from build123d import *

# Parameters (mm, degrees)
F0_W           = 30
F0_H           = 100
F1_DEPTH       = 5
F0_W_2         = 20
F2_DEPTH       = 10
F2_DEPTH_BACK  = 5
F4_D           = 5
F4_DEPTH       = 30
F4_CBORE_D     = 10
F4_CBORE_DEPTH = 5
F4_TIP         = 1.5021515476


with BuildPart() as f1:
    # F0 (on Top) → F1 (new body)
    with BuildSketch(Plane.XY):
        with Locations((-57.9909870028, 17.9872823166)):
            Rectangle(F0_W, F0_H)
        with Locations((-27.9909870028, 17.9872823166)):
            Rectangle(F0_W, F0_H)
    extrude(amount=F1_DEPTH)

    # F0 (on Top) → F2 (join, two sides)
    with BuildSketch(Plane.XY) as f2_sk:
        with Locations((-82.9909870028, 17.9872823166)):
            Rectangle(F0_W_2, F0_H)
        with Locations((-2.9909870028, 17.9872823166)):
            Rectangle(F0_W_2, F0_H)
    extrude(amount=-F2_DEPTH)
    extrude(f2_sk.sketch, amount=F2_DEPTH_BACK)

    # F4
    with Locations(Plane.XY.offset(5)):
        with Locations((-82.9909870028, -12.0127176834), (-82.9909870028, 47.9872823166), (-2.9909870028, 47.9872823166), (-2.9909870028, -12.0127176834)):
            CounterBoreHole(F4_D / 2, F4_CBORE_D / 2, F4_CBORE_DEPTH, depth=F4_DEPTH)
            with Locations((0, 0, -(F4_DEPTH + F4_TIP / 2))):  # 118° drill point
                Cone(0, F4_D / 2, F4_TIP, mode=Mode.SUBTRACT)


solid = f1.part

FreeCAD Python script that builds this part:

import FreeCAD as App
import Part
import Sketcher
from FreeCAD import Vector
Q = App.Units.Quantity


def add_polygon(sketch, points):
    """Adds a closed chain of lines whose ends are joined by coincident constraints."""
    first, n = sketch.GeometryCount, len(points)
    for a, b in zip(points, points[1:] + points[:1]):
        sketch.addGeometry(Part.LineSegment(App.Vector(*a, 0), App.Vector(*b, 0)), False)
    for i in range(n):
        sketch.addConstraint(Sketcher.Constraint("Coincident", first + i, 2, first + (i + 1) % n, 1))

doc = App.newDocument("Part")
body = doc.addObject("PartDesign::Body", "Body")

sketch1 = body.newObject("Sketcher::SketchObject", "Sketch")
sketch1.AttachmentSupport = (doc.getObject("XY_Plane"), [""])
sketch1.MapMode = "FlatFace"
add_polygon(sketch1, [(-73, 68), (-73, -32), (-13, -32), (-13, 68)])
sketch1.addConstraint(Sketcher.Constraint("Vertical", 0))
sketch1.addConstraint(Sketcher.Constraint("Horizontal", 1))
sketch1.addConstraint(Sketcher.Constraint("Vertical", 2))
sketch1.addConstraint(Sketcher.Constraint("Horizontal", 3))
sketch1.addConstraint(Sketcher.Constraint("DistanceX", 1, 1, 1, 2, Q("60 mm")))
sketch1.addConstraint(Sketcher.Constraint("DistanceY", 0, 2, 0, 1, Q("100 mm")))
sketch1.addConstraint(Sketcher.Constraint("DistanceX", 0, 2, -1, 1, Q("72.990987 mm")))
sketch1.addConstraint(Sketcher.Constraint("DistanceY", 0, 2, -1, 1, Q("32.012718 mm")))
pad1 = body.newObject("PartDesign::Pad", "Pad")
pad1.Profile = sketch1
pad1.Length = 5

sketch2 = body.newObject("Sketcher::SketchObject", "Sketch001")
sketch2.AttachmentSupport = (doc.getObject("XY_Plane"), [""])
sketch2.MapMode = "FlatFace"
add_polygon(sketch2, [(-93, 68), (-93, -32), (-73, -32), (-73, 68)])
add_polygon(sketch2, [(-13, 68), (-13, -32), (7, -32), (7, 68)])
sketch2.addConstraint(Sketcher.Constraint("Vertical", 0))
sketch2.addConstraint(Sketcher.Constraint("Horizontal", 1))
sketch2.addConstraint(Sketcher.Constraint("Vertical", 2))
sketch2.addConstraint(Sketcher.Constraint("Horizontal", 3))
sketch2.addConstraint(Sketcher.Constraint("Vertical", 4))
sketch2.addConstraint(Sketcher.Constraint("Horizontal", 5))
sketch2.addConstraint(Sketcher.Constraint("Vertical", 6))
sketch2.addConstraint(Sketcher.Constraint("Horizontal", 7))
sketch2.addConstraint(Sketcher.Constraint("Horizontal", 1, 2, 4, 2))
sketch2.addConstraint(Sketcher.Constraint("Horizontal", 3, 2, 6, 2))
sketch2.addConstraint(Sketcher.Constraint("Equal", 3, 5))
sketch2.addConstraint(Sketcher.Constraint("DistanceX", 1, 1, 1, 2, Q("20 mm")))
sketch2.addConstraint(Sketcher.Constraint("DistanceY", 0, 2, 0, 1, Q("100 mm")))
sketch2.addConstraint(Sketcher.Constraint("DistanceX", 1, 2, 4, 2, Q("60 mm")))
sketch2.addConstraint(Sketcher.Constraint("DistanceX", 0, 2, -1, 1, Q("92.990987 mm")))
sketch2.addConstraint(Sketcher.Constraint("DistanceY", 0, 2, -1, 1, Q("32.012718 mm")))
pad2 = body.newObject("PartDesign::Pad", "Pad001")
pad2.Profile = sketch2
pad2.Type = "TwoLengths"
pad2.Length = 10
pad2.Length2 = 5
pad2.Reversed = True

sketch3 = body.newObject("Sketcher::SketchObject", "Sketch002")
sketch3.AttachmentSupport = (doc.getObject("XY_Plane"), [""])
sketch3.MapMode = "FlatFace"
sketch3.AttachmentOffset = App.Placement(Vector(0, 0, 5), App.Rotation())
sketch3.addGeometry(Part.Circle(Vector(-83, -12, 0), Vector(0, 0, 1), 2.5), False)
sketch3.addGeometry(Part.Circle(Vector(-83, 48, 0), Vector(0, 0, 1), 2.5), False)
sketch3.addGeometry(Part.Circle(Vector(-3, 48, 0), Vector(0, 0, 1), 2.5), False)
sketch3.addGeometry(Part.Circle(Vector(-3, -12, 0), Vector(0, 0, 1), 2.5), False)
sketch3.addConstraint(Sketcher.Constraint("Equal", 0, 1))
sketch3.addConstraint(Sketcher.Constraint("Equal", 1, 2))
sketch3.addConstraint(Sketcher.Constraint("Equal", 2, 3))
sketch3.addConstraint(Sketcher.Constraint("Horizontal", 1, 3, 2, 3))
sketch3.addConstraint(Sketcher.Constraint("Horizontal", 0, 3, 3, 3))
sketch3.addConstraint(Sketcher.Constraint("Vertical", 0, 3, 1, 3))
sketch3.addConstraint(Sketcher.Constraint("Vertical", 2, 3, 3, 3))
sketch3.addConstraint(Sketcher.Constraint("Diameter", 0, Q("5 mm")))
sketch3.addConstraint(Sketcher.Constraint("DistanceY", 0, 3, 1, 3, Q("60 mm")))
sketch3.addConstraint(Sketcher.Constraint("DistanceX", 1, 3, 2, 3, Q("80 mm")))
sketch3.addConstraint(Sketcher.Constraint("DistanceX", 0, 3, -1, 1, Q("82.990987 mm")))
sketch3.addConstraint(Sketcher.Constraint("DistanceY", 0, 3, -1, 1, Q("12.012718 mm")))
doc.recompute()
hole = body.newObject("PartDesign::Hole", "Hole")
hole.Profile = sketch3
hole.ThreadType = "None"
hole.Diameter = 5
hole.DepthType = "Dimension"
hole.Depth = 30
hole.DrillPoint = "Angled"
hole.DrillPointAngle = 118
hole.HoleCutType = "Counterbore"
hole.HoleCutDiameter = 10
hole.HoleCutDepth = 5

doc.recompute()
